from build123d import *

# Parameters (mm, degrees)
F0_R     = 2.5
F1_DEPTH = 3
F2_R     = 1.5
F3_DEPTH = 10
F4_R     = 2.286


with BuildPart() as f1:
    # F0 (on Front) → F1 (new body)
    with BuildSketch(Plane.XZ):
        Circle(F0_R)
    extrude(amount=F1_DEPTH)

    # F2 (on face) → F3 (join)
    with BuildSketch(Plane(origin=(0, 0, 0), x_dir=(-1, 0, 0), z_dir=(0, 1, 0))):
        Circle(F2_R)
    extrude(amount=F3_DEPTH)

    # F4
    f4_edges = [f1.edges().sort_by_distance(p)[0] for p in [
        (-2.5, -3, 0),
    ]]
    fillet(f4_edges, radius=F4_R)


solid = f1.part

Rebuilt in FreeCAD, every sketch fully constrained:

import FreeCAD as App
import Part
import Sketcher
Q = App.Units.Quantity


def edges_at(feature, points):
    """Names of the edges that pass closest to the given points."""
    edges = feature.Shape.Edges
    near = lambda p: min(range(len(edges)), key=lambda i: edges[i].distToShape(Part.Vertex(*p))[0])
    return sorted({f"Edge{near(p) + 1}" for p in points})

doc = App.newDocument("Part")
body = doc.addObject("PartDesign::Body", "Body")

# Sketch on XZ plane
sketch1 = body.newObject("Sketcher::SketchObject", "Sketch")
sketch1.AttachmentSupport = (doc.getObject("XZ_Plane"), [""])
sketch1.MapMode = "FlatFace"
sketch1.addGeometry(Part.Circle(App.Vector(0, 0, 0), App.Vector(0, 0, 1), 2.5), False)
sketch1.addConstraint([
    Sketcher.Constraint("Coincident", 0, 3, -1, 1),
    Sketcher.Constraint("Diameter", 0, Q("5 mm")),
])
pad1 = body.newObject("PartDesign::Pad", "Pad")
pad1.Profile = sketch1
pad1.Length = 3

# Sketch on XZ plane
sketch2 = body.newObject("Sketcher::SketchObject", "Sketch001")
sketch2.AttachmentSupport = (doc.getObject("XZ_Plane"), [""])
sketch2.MapMode = "FlatFace"
sketch2.addGeometry(Part.Circle(App.Vector(0, 0, 0), App.Vector(0, 0, 1), 1.5), False)
sketch2.addConstraint([
    Sketcher.Constraint("Coincident", 0, 3, -1, 1),
    Sketcher.Constraint("Diameter", 0, Q("3 mm")),
])
pad2 = body.newObject("PartDesign::Pad", "Pad001")
pad2.Profile = sketch2
pad2.Length = 10
pad2.Reversed = True
doc.recompute()

fillet = body.newObject("PartDesign::Fillet", "Fillet")
fillet.Base = (pad2, edges_at(pad2, [(-2.5, -3, 0)]))
fillet.Radius = 2.286

doc.recompute()
